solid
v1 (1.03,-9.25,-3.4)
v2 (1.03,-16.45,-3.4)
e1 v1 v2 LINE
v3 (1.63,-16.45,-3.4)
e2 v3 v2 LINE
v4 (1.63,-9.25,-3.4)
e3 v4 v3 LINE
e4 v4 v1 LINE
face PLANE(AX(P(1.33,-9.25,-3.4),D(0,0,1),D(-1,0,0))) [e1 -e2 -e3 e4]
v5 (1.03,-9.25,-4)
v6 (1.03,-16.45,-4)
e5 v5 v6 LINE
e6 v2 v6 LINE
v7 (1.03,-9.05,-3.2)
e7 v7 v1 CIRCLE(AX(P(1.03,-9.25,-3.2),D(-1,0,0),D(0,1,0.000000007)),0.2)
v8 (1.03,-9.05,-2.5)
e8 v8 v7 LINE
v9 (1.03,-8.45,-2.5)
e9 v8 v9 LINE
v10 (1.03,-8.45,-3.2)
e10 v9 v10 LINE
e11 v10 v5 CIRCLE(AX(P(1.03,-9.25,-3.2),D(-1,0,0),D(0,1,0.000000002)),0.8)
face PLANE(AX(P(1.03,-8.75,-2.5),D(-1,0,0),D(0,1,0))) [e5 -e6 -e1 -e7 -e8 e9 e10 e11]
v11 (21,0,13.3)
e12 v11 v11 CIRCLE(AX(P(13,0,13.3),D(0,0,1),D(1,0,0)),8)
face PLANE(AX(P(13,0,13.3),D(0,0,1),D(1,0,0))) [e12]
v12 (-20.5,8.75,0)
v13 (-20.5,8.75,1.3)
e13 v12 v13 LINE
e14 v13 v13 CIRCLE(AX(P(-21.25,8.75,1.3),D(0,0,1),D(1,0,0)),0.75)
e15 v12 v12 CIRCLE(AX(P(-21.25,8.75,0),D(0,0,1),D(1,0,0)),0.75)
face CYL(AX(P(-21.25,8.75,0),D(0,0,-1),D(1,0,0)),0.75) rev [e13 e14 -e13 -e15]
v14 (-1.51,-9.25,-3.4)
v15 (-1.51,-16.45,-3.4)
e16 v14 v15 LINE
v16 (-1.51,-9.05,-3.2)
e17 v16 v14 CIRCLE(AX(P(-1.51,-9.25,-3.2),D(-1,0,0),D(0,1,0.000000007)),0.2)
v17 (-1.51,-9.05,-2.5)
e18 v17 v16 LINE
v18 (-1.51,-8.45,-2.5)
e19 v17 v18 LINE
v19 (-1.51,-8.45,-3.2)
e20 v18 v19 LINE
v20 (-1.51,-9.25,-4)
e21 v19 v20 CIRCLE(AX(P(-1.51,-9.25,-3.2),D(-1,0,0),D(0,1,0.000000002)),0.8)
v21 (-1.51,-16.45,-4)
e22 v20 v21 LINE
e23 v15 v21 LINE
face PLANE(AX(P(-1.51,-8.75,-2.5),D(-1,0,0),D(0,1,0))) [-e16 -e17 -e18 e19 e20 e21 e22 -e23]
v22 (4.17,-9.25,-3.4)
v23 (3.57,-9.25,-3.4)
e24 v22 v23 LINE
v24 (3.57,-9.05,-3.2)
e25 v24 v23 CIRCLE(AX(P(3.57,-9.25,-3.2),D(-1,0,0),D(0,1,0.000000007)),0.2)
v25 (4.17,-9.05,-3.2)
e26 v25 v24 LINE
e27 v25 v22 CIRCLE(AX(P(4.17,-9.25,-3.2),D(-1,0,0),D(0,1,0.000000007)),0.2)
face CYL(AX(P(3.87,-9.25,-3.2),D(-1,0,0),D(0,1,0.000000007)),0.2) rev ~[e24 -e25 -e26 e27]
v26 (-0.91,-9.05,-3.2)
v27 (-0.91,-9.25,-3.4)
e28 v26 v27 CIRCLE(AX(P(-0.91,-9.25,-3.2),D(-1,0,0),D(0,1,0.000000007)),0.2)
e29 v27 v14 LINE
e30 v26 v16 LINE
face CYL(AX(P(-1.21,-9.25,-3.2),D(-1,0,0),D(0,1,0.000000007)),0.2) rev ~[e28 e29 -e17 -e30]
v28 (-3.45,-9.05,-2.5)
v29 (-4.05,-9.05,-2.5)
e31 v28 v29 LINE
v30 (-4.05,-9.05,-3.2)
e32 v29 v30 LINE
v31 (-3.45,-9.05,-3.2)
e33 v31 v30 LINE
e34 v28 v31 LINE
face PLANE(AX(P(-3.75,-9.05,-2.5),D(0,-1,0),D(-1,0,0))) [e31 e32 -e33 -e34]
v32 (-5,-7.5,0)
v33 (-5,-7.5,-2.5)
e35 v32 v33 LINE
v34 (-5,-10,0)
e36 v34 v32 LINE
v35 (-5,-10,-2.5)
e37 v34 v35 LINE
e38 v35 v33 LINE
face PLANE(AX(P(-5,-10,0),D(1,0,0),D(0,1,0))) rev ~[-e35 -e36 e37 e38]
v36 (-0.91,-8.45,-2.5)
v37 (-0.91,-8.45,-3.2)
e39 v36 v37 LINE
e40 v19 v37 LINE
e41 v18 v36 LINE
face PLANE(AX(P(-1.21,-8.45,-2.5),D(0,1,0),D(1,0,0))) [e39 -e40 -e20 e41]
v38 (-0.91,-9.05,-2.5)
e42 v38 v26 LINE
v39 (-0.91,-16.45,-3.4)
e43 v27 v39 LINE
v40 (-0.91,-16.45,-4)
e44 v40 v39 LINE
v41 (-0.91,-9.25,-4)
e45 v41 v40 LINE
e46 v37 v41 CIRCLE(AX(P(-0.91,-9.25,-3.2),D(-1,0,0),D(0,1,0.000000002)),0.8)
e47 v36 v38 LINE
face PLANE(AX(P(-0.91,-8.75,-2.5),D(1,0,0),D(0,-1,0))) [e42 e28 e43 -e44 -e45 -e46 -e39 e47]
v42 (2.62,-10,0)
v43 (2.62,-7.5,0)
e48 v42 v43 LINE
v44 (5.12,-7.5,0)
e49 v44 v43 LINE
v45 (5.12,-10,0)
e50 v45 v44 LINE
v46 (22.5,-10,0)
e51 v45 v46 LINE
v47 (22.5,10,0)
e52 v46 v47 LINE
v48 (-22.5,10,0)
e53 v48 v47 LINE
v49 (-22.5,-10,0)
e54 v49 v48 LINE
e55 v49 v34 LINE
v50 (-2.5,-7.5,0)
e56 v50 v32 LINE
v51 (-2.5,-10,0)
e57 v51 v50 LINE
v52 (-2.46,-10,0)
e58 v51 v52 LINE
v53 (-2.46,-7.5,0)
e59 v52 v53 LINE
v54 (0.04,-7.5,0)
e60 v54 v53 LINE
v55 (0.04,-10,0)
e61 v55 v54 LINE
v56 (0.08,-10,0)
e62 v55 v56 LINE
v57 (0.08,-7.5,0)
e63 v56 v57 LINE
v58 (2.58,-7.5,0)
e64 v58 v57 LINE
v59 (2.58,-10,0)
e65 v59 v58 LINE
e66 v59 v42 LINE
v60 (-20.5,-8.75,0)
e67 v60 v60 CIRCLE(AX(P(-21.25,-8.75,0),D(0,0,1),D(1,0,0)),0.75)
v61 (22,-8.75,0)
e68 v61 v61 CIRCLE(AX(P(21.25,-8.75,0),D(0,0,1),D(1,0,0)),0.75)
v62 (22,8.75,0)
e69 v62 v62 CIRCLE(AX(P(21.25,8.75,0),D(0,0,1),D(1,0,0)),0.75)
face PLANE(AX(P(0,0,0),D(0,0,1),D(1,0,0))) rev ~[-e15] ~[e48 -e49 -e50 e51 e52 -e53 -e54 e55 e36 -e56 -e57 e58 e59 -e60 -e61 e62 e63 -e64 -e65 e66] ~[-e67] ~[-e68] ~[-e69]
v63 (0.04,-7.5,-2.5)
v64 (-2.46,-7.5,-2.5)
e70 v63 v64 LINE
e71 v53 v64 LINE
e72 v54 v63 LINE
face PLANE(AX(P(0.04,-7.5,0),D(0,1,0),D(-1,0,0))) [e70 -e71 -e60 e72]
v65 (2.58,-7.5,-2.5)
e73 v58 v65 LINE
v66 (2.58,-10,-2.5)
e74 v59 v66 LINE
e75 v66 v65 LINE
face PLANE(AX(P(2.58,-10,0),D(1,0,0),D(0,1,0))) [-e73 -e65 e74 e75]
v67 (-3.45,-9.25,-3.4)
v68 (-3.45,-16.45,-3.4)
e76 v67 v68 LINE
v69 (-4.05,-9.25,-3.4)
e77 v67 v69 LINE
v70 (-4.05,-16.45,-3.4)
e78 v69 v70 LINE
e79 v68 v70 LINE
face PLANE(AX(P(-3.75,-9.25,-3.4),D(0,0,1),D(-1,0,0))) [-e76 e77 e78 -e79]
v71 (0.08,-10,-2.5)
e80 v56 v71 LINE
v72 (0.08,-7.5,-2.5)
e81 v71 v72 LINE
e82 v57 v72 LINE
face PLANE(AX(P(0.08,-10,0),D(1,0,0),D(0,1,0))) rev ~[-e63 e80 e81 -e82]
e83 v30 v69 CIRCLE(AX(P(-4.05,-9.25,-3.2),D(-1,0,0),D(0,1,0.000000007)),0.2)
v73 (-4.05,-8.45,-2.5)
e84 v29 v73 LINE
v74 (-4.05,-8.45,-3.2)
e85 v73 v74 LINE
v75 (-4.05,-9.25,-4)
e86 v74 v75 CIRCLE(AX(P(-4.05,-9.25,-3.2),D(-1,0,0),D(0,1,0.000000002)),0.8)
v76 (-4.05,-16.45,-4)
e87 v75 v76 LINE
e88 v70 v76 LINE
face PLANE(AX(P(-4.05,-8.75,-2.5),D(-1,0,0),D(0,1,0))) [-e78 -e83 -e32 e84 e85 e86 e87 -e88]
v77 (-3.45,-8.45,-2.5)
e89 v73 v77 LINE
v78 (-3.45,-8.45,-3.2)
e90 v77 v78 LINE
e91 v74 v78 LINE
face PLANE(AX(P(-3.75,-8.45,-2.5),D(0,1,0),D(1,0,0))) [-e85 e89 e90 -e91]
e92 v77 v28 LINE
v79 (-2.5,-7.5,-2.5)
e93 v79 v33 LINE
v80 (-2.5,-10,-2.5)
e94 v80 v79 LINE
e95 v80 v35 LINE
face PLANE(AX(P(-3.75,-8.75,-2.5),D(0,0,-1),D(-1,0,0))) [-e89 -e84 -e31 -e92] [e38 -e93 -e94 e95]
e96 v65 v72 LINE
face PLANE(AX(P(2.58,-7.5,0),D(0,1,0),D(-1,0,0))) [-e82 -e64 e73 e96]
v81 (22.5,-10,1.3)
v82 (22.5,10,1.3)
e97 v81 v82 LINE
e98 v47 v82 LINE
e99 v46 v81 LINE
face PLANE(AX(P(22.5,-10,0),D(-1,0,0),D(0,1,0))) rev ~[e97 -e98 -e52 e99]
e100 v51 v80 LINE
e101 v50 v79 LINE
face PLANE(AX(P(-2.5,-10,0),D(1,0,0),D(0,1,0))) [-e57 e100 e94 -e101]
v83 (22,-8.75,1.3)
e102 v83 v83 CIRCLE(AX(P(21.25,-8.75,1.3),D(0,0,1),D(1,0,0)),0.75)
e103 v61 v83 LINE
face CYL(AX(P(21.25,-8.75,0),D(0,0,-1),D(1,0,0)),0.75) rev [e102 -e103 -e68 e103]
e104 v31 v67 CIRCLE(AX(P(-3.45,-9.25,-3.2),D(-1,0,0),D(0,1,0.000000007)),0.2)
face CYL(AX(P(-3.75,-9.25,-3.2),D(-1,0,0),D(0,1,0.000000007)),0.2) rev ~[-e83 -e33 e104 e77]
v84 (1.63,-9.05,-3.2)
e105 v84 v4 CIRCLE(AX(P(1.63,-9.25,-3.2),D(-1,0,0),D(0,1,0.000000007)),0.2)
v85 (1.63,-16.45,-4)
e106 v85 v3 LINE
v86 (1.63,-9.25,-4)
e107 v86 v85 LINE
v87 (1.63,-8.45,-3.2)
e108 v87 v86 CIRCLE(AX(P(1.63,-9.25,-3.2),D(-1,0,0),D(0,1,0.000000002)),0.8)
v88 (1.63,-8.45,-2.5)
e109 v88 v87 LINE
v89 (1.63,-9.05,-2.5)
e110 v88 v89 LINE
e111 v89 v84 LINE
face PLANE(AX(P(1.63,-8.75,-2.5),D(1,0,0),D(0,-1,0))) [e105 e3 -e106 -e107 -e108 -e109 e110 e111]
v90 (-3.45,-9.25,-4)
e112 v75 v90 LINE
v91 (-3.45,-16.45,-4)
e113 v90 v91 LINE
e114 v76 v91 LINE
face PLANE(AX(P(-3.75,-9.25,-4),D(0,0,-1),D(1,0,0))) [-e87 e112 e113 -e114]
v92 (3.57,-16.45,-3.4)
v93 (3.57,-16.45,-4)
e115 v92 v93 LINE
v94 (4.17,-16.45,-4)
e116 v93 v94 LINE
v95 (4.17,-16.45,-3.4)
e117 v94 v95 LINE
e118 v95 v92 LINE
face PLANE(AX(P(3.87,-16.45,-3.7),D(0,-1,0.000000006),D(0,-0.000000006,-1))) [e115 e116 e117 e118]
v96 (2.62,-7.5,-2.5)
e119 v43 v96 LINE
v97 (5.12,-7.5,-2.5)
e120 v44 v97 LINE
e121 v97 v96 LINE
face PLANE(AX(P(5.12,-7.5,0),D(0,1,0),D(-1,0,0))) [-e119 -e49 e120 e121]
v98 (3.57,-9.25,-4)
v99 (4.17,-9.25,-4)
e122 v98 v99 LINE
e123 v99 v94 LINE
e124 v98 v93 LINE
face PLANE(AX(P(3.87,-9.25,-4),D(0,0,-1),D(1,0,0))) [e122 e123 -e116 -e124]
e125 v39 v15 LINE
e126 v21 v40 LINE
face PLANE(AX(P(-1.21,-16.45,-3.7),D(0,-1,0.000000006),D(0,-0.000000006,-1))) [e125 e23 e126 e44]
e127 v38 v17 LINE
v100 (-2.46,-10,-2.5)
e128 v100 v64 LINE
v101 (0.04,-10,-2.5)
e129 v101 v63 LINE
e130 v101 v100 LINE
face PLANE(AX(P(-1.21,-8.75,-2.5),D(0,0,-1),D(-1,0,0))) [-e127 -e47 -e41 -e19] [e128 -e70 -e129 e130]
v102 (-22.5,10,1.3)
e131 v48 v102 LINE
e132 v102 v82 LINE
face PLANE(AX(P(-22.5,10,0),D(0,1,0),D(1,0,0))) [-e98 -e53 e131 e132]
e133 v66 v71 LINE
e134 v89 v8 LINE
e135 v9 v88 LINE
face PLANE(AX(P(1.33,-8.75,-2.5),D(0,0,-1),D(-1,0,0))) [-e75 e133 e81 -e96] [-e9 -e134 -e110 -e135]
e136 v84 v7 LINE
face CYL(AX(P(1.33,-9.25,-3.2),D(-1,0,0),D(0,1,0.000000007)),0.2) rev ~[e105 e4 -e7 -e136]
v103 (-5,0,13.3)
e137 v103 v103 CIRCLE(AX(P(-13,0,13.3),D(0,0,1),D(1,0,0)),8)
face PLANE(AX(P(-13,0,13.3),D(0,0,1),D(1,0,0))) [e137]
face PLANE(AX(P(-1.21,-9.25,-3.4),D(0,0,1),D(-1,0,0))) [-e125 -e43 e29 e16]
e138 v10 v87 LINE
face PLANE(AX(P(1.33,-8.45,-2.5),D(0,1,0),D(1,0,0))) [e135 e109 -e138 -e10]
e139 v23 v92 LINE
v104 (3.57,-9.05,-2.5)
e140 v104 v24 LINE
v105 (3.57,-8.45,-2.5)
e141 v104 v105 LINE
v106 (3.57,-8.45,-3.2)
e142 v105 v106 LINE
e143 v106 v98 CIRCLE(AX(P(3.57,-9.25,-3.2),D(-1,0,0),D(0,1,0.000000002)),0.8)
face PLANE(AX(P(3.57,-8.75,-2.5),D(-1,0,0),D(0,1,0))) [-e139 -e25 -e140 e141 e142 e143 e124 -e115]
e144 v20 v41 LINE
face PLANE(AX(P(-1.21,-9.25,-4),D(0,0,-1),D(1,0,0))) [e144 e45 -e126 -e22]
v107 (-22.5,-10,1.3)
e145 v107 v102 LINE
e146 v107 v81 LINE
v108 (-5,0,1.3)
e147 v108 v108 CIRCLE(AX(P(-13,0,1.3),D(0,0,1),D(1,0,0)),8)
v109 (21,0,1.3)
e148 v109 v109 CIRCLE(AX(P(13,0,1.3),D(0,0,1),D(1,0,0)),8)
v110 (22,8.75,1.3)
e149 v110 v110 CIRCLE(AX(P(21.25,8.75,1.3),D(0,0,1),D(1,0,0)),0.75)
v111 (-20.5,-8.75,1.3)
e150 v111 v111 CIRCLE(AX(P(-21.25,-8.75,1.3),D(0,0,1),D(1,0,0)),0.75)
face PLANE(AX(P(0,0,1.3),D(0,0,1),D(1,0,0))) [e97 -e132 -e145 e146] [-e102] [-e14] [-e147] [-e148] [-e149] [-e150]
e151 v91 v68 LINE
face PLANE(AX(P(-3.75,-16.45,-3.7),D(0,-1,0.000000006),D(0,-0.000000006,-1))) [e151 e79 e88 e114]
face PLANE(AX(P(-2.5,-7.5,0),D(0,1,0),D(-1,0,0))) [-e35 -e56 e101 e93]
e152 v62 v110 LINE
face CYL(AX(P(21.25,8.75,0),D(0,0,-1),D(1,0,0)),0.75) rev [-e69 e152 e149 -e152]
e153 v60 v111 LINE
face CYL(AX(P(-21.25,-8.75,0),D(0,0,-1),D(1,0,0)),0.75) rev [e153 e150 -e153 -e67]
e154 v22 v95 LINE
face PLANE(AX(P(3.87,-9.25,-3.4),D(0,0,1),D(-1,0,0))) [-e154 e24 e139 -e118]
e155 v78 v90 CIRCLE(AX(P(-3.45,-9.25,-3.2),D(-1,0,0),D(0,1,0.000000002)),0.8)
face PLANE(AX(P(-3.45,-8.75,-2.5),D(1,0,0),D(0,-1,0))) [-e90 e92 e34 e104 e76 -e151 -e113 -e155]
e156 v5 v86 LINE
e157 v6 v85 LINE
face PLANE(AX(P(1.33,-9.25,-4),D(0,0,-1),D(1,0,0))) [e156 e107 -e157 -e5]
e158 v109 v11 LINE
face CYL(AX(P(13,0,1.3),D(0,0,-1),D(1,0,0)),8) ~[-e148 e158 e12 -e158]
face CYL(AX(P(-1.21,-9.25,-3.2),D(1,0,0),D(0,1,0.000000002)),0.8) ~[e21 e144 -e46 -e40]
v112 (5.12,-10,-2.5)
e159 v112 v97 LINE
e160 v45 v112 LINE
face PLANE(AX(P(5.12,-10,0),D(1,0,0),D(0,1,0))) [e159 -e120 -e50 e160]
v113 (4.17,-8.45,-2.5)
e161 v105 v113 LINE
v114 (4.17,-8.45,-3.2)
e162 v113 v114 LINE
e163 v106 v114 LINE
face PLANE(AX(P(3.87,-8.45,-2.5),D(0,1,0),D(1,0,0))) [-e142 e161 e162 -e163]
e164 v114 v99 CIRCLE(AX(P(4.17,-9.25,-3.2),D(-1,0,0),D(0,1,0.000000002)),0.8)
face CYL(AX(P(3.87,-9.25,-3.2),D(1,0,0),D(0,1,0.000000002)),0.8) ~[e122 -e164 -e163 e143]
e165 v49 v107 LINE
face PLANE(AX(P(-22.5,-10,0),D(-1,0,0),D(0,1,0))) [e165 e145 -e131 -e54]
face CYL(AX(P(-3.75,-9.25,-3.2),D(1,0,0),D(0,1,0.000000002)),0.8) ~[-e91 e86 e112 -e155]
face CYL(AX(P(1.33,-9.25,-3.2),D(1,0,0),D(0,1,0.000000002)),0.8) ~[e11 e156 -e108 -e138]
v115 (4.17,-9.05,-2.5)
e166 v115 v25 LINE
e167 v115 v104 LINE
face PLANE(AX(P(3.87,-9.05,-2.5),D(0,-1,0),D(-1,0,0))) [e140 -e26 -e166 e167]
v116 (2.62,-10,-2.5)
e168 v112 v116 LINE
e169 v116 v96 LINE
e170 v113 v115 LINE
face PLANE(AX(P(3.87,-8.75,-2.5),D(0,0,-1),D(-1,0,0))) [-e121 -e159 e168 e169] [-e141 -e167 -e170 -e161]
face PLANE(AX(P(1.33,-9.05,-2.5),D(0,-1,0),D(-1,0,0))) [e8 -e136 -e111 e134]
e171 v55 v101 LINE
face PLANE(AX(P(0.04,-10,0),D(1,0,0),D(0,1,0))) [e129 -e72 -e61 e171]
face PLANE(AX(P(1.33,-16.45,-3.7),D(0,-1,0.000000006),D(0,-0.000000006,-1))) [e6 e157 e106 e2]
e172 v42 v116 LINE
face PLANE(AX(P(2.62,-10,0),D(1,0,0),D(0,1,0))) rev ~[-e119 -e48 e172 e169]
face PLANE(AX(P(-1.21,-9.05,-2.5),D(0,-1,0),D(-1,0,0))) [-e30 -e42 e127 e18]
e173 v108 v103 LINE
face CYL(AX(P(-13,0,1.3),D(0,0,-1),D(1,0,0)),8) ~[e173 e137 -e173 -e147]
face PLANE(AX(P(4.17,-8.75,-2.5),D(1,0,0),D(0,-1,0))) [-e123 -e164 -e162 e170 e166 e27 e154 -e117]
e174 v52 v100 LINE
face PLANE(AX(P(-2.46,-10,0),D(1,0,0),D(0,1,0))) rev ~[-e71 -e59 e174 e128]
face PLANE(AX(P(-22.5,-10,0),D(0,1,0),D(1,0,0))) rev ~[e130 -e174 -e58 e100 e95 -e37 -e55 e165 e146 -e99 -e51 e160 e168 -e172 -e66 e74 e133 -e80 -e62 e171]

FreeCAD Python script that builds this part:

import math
import FreeCAD as App
import Part
import Sketcher
from FreeCAD import Vector
Q = App.Units.Quantity


def add_polygon(sketch, points):
    """Adds a closed chain of lines whose ends are joined by coincident constraints."""
    first, n = sketch.GeometryCount, len(points)
    for a, b in zip(points, points[1:] + points[:1]):
        sketch.addGeometry(Part.LineSegment(App.Vector(*a, 0), App.Vector(*b, 0)), False)
    for i in range(n):
        sketch.addConstraint(Sketcher.Constraint("Coincident", first + i, 2, first + (i + 1) % n, 1))

doc = App.newDocument("Part")
body = doc.addObject("PartDesign::Body", "Body")

# Sketch on XY plane
sketch1 = doc.addObject("Sketcher::SketchObject", "Sketch")
body.addObject(sketch1)
sketch1.AttachmentSupport = (doc.XY_Plane, [""])
sketch1.MapMode = "FlatFace"
add_polygon(sketch1, [(-22.5, 10), (-22.5, -10), (22.5, -10), (22.5, 10)])  # lines 0-3
sketch1.addGeometry(Part.Circle(Vector(-21.2, -8.8, 0), Vector(0, 0, 1), 0.8), False)  # 4
sketch1.addGeometry(Part.Circle(Vector(21.2, -8.8, 0), Vector(0, 0, 1), 0.8), False)  # 5
sketch1.addGeometry(Part.Circle(Vector(-21.2, 8.8, 0), Vector(0, 0, 1), 0.8), False)  # 6
sketch1.addGeometry(Part.Circle(Vector(21.2, 8.8, 0), Vector(0, 0, 1), 0.8), False)  # 7
sketch1.addConstraint([
    Sketcher.Constraint("Vertical", 0),
    Sketcher.Constraint("Horizontal", 1),
    Sketcher.Constraint("Vertical", 2),
    Sketcher.Constraint("Horizontal", 3),
    Sketcher.Constraint("Equal", 4, 5),
    Sketcher.Constraint("Equal", 5, 6),
    Sketcher.Constraint("Equal", 6, 7),
    Sketcher.Constraint("Symmetric", 5, 3, 6, 3, -1, 1),
    Sketcher.Constraint("Symmetric", 4, 3, 7, 3, -1, 1),
    Sketcher.Constraint("Symmetric", 0, 2, 2, 2, -1, 1),
    Sketcher.Constraint("Symmetric", 4, 3, 5, 3, -2),
    Sketcher.Constraint("Diameter", 4, Q("1.5 mm")),
    Sketcher.Constraint("DistanceX", 1, 1, 1, 2, Q("45 mm")),
    Sketcher.Constraint("DistanceY", 0, 2, 0, 1, Q("20 mm")),
    Sketcher.Constraint("DistanceX", 4, 3, 5, 3, Q("42.5 mm")),
    Sketcher.Constraint("DistanceY", 4, 3, 6, 3, Q("17.5 mm")),
])
pad1 = doc.addObject("PartDesign::Pad", "Pad")
body.addObject(pad1)
pad1.Profile = sketch1
pad1.Length = 1.3

# Sketch on XY plane
sketch2 = doc.addObject("Sketcher::SketchObject", "Sketch001")
body.addObject(sketch2)
sketch2.AttachmentSupport = (doc.XY_Plane, [""])
sketch2.MapMode = "FlatFace"
sketch2.AttachmentOffset = App.Placement(Vector(0, 0, 1.3), App.Rotation())
sketch2.addGeometry([
    Part.Circle(Vector(-13, 0, 0), Vector(0, 0, 1), 8),
    Part.Circle(Vector(13, 0, 0), Vector(0, 0, 1), 8),
], False)
sketch2.addConstraint([
    Sketcher.Constraint("Equal", 0, 1),
    Sketcher.Constraint("Symmetric", 0, 3, 1, 3, -1, 1),
    Sketcher.Constraint("PointOnObject", 0, 3, -1),
    Sketcher.Constraint("Diameter", 0, Q("16 mm")),
    Sketcher.Constraint("DistanceX", 0, 3, -1, 1, Q("13 mm")),
])
pad2 = doc.addObject("PartDesign::Pad", "Pad001")
body.addObject(pad2)
pad2.Profile = sketch2
pad2.Length = 12

# Sketch on XY plane
sketch3 = doc.addObject("Sketcher::SketchObject", "Sketch002")
body.addObject(sketch3)
sketch3.AttachmentSupport = (doc.XY_Plane, [""])
sketch3.MapMode = "FlatFace"
add_polygon(sketch3, [(-2.5, -7.5), (-2.5, -10), (-5, -10), (-5, -7.5)])  # lines 0-3
sketch3.addConstraint([
    Sketcher.Constraint("Vertical", 0),
    Sketcher.Constraint("Horizontal", 1),
    Sketcher.Constraint("Vertical", 2),
    Sketcher.Constraint("Horizontal", 3),
    Sketcher.Constraint("Equal", 3, 0),
    Sketcher.Constraint("DistanceX", 1, 2, 1, 1, Q("2.5 mm")),
    Sketcher.Constraint("DistanceY", 0, 2, -1, 1, Q("10 mm")),
    Sketcher.Constraint("DistanceX", 1, 2, -1, 1, Q("5 mm")),
])
pad3 = doc.addObject("PartDesign::Pad", "Pad002")
body.addObject(pad3)
pad3.Profile = sketch3
pad3.Length = 2.5
pad3.Reversed = True

# Sketch on XY plane
sketch4 = doc.addObject("Sketcher::SketchObject", "Sketch003")
body.addObject(sketch4)
sketch4.AttachmentSupport = (doc.XY_Plane, [""])
sketch4.MapMode = "FlatFace"
sketch4.AttachmentOffset = App.Placement(Vector(0, 0, -2.5), App.Rotation())
add_polygon(sketch4, [(-3.5, -8.4), (-3.5, -9.1), (-4, -9.1), (-4, -8.4)])  # lines 0-3
sketch4.addConstraint([
    Sketcher.Constraint("Vertical", 0),
    Sketcher.Constraint("Horizontal", 1),
    Sketcher.Constraint("Vertical", 2),
    Sketcher.Constraint("Horizontal", 3),
    Sketcher.Constraint("Equal", 3, 0),
    Sketcher.Constraint("DistanceX", 1, 2, 1, 1, Q("0.6 mm")),
    Sketcher.Constraint("DistanceX", 0, 2, -1, 1, Q("3.45 mm")),
    Sketcher.Constraint("DistanceY", 0, 2, -1, 1, Q("9.05 mm")),
])

# Sketch on YZ plane
sketch5 = doc.addObject("Sketcher::SketchObject", "Sketch004")
body.addObject(sketch5)
sketch5.AttachmentSupport = (doc.YZ_Plane, [""])
sketch5.MapMode = "FlatFace"
sketch5.AttachmentOffset = App.Placement(Vector(0, 0, -3.75), App.Rotation())
sketch5.addGeometry([
    Part.LineSegment(Vector(-8.75, -2.5, 0), Vector(-8.75, -3.2, 0)),
    Part.ArcOfCircle(Part.Circle(Vector(-9.25, -3.2, 0), Vector(0, 0, 1), 0.5), math.radians(-90), math.radians(0)),
    Part.LineSegment(Vector(-9.25, -3.7, 0), Vector(-16.45, -3.7, 0)),
], False)
sketch5.addConstraint([
    Sketcher.Constraint("Tangent", 0, 2, 1, 2),
    Sketcher.Constraint("Tangent", 1, 1, 2, 1),
    Sketcher.Constraint("Vertical", 0),
    Sketcher.Constraint("Horizontal", 2),
    Sketcher.Constraint("Radius", 1, Q("0.5 mm")),
    Sketcher.Constraint("DistanceX", 2, 2, 2, 1, Q("7.2 mm")),
    Sketcher.Constraint("DistanceY", 0, 2, 0, 1, Q("0.7 mm")),
    Sketcher.Constraint("DistanceY", 1, 3, -1, 1, Q("3.2 mm")),
    Sketcher.Constraint("DistanceX", 1, 3, -1, 1, Q("9.25 mm")),
])
doc.recompute()

additivepipe = doc.addObject("PartDesign::AdditivePipe", "AdditivePipe")
body.addObject(additivepipe)
additivepipe.Profile = sketch4
additivepipe.Spine = (sketch5, ["Edge1", "Edge2", "Edge3"])
doc.recompute()

linearpattern = doc.addObject("PartDesign::LinearPattern", "LinearPattern")
body.addObject(linearpattern)
linearpattern.Originals = [pad3, additivepipe]
linearpattern.Direction = (doc.X_Axis, [""])
linearpattern.Mode = "offset"
linearpattern.Offset = 2.54
linearpattern.Occurrences = 4
body.Tip = linearpattern

doc.recompute()
